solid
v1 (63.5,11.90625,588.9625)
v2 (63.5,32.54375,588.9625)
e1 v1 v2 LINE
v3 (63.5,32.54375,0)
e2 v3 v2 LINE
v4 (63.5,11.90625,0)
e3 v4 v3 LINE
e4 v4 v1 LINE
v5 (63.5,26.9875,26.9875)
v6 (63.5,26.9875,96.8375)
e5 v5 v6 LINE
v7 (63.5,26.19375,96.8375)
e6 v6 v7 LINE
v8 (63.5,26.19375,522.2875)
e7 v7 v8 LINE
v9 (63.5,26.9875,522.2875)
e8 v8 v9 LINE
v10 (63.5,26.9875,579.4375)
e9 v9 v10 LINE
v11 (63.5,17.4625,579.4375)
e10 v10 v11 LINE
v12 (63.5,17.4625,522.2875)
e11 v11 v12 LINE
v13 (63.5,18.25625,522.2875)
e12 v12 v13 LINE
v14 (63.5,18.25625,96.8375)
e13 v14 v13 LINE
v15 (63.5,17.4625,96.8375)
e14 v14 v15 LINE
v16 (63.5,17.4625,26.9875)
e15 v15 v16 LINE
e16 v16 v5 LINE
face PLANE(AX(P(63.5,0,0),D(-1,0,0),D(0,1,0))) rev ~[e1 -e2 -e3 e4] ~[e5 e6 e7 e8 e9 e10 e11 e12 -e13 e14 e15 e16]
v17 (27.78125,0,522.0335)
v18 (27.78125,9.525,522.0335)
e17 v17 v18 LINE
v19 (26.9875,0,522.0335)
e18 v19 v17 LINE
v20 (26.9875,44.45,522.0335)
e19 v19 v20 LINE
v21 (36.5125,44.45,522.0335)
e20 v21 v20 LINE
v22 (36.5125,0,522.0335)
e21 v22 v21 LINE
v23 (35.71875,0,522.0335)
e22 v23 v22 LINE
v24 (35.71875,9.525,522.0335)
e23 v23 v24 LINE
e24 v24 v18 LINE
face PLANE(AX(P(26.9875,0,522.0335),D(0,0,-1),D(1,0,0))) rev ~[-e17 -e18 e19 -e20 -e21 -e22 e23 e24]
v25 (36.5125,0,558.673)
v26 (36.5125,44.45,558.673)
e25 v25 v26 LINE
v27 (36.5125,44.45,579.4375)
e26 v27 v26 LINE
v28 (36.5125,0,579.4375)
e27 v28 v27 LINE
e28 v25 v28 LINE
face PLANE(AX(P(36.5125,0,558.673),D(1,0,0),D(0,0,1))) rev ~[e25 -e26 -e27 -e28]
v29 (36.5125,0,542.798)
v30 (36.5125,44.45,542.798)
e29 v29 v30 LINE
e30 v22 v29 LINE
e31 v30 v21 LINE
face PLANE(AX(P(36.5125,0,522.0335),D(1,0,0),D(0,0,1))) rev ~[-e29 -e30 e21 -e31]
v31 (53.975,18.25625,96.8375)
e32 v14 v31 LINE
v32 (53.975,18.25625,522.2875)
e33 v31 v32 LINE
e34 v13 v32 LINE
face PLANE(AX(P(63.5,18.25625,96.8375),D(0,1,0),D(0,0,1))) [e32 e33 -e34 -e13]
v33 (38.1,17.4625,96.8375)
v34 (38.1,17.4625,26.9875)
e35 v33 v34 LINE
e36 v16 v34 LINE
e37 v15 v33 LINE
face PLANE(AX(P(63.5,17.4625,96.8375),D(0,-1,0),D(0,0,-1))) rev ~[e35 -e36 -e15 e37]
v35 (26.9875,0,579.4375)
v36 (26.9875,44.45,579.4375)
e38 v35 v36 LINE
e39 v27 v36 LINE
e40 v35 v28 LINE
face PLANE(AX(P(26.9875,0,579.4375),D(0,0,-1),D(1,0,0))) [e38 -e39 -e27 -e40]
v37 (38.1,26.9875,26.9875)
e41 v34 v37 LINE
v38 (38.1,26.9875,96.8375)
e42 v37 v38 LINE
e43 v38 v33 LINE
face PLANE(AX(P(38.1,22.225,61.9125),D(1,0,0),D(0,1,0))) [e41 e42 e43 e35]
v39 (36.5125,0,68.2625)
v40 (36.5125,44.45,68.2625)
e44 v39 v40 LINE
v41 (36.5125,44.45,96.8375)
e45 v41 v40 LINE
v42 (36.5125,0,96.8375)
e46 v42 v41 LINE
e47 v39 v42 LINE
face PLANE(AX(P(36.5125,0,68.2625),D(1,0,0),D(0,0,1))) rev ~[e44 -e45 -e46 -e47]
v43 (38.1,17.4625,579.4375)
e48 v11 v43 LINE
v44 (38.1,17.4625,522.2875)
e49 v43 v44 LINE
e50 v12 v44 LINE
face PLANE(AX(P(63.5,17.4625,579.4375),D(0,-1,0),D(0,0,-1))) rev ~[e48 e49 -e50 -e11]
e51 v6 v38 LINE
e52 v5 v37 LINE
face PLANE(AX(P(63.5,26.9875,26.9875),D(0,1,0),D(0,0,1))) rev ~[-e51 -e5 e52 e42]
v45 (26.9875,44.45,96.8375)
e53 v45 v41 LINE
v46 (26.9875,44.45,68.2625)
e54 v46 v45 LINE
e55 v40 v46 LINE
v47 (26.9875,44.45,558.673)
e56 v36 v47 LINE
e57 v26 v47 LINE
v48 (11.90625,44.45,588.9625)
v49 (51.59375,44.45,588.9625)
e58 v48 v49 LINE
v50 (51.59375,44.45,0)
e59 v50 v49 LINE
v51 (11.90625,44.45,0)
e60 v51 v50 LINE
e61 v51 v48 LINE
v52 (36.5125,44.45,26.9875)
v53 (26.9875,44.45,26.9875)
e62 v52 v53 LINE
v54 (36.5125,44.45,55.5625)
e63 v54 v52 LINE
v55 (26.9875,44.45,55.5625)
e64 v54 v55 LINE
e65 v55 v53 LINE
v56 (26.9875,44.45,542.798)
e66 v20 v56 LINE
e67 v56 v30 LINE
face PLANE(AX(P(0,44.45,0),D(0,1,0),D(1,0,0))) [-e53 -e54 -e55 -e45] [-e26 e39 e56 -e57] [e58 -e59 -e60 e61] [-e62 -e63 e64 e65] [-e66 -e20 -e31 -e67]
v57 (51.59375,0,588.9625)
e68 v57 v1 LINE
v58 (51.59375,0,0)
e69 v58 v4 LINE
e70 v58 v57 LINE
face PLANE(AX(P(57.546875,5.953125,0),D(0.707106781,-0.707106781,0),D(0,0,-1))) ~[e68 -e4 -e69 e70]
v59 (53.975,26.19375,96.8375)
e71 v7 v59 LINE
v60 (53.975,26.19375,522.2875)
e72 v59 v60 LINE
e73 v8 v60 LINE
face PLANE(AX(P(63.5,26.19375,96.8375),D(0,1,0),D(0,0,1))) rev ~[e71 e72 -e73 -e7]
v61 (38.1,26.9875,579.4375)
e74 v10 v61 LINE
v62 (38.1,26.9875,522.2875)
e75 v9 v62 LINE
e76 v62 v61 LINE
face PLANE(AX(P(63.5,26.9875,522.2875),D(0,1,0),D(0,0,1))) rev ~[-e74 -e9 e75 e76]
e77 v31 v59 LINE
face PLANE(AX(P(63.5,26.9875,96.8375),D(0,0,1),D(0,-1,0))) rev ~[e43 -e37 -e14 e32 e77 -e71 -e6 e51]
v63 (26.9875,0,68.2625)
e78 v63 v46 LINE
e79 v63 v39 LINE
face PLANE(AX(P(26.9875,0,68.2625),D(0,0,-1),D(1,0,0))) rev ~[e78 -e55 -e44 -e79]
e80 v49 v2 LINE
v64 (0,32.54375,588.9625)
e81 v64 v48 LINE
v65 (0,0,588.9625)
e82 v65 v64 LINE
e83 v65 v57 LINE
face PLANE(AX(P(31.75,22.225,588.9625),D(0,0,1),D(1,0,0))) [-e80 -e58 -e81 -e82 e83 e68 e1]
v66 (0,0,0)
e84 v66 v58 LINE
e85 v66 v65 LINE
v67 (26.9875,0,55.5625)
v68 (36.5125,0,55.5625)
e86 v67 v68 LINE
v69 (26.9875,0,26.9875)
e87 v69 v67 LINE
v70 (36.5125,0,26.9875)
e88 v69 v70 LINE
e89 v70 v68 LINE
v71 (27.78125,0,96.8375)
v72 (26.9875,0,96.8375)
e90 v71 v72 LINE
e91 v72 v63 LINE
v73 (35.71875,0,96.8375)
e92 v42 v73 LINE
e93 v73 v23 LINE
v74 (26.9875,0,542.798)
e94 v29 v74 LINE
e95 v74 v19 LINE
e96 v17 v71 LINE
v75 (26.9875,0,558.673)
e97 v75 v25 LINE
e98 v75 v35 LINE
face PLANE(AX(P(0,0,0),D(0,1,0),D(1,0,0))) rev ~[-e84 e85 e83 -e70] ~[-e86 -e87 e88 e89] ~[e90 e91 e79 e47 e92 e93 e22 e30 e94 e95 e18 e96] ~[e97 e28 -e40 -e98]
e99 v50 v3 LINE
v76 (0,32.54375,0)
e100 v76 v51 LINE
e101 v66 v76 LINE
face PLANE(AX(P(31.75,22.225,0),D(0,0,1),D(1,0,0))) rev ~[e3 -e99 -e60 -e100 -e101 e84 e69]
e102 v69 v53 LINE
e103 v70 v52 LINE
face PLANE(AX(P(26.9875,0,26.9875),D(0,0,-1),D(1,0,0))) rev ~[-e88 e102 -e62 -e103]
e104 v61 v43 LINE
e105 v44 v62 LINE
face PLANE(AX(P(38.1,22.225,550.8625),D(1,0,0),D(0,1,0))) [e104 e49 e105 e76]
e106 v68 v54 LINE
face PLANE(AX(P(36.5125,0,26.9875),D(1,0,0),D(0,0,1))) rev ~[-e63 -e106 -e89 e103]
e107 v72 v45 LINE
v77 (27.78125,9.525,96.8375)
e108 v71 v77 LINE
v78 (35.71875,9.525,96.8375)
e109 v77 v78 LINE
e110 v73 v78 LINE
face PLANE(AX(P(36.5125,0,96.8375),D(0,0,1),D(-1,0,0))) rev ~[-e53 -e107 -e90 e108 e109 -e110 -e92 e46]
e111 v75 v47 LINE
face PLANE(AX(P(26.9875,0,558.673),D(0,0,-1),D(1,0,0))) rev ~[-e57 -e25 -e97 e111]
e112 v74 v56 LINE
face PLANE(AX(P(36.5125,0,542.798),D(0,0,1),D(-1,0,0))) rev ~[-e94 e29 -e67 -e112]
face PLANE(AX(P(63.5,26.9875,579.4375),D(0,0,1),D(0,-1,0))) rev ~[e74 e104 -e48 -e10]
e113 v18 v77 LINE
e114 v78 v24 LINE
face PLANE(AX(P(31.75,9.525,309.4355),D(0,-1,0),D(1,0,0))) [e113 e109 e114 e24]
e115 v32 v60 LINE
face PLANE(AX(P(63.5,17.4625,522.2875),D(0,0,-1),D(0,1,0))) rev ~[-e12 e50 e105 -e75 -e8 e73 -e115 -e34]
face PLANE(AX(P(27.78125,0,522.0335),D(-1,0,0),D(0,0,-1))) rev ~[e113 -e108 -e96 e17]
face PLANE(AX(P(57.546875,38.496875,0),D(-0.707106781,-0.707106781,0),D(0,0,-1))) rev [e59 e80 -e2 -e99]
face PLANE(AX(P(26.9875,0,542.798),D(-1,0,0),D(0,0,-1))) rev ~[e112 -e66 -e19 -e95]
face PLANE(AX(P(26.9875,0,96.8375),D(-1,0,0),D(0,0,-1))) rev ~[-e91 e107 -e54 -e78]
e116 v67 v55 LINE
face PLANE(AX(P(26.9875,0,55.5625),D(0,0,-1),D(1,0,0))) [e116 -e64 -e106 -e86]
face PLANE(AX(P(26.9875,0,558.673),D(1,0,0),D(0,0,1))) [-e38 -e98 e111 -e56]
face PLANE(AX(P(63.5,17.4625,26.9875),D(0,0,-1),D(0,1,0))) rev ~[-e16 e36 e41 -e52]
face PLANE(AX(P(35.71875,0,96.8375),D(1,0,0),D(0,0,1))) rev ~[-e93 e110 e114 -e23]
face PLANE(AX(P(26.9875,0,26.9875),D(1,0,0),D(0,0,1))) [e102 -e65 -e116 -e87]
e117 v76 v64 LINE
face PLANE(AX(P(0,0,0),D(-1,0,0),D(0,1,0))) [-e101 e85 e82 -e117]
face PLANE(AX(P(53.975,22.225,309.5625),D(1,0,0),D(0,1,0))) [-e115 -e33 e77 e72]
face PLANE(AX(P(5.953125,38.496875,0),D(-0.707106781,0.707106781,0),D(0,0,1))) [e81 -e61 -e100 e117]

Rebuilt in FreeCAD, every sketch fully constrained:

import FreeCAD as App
import Part
import Sketcher

V = App.Vector
Q = App.Units.Quantity


def edges_at(feature, points):
    """Names of the edges that pass closest to the given points."""
    edges = feature.Shape.Edges
    near = lambda p: min(range(len(edges)), key=lambda i: edges[i].distToShape(Part.Vertex(*p))[0])
    return sorted({f"Edge{near(p) + 1}" for p in points})


def add_polygon(sketch, points):
    """Adds a closed chain of lines whose ends are joined by coincident constraints."""
    first, n = sketch.GeometryCount, len(points)
    for a, b in zip(points, points[1:] + points[:1]):
        sketch.addGeometry(Part.LineSegment(App.Vector(*a, 0), App.Vector(*b, 0)), False)
    for i in range(n):
        sketch.addConstraint(Sketcher.Constraint("Coincident", first + i, 2, first + (i + 1) % n, 1))

doc = App.newDocument("Part")
body = doc.addObject("PartDesign::Body", "Body")

# Sketch on XY plane
sketch1 = doc.addObject("Sketcher::SketchObject", "Sketch")
body.addObject(sketch1)
sketch1.AttachmentSupport = (doc.XY_Plane, [""])
sketch1.MapMode = "FlatFace"
add_polygon(sketch1, [(0, 44), (0, 0), (64, 0), (64, 44)])  # lines 0-3
sketch1.addConstraint(Sketcher.Constraint("Vertical", 0))
sketch1.addConstraint(Sketcher.Constraint("Horizontal", 1))
sketch1.addConstraint(Sketcher.Constraint("Vertical", 2))
sketch1.addConstraint(Sketcher.Constraint("Horizontal", 3))
sketch1.addConstraint(Sketcher.Constraint("Coincident", 0, 2, -1, 1))
sketch1.addConstraint(Sketcher.Constraint("DistanceX", 1, 1, 1, 2, Q("2.5 in")))
sketch1.addConstraint(Sketcher.Constraint("DistanceY", 0, 2, 0, 1, Q("1.75 in")))
pad1 = doc.addObject("PartDesign::Pad", "Pad")
body.addObject(pad1)
pad1.Profile = sketch1
pad1.Length = Q("23.1875 in")

# Sketch on YZ plane
sketch2 = doc.addObject("Sketcher::SketchObject", "Sketch001")
body.addObject(sketch2)
sketch2.AttachmentSupport = (doc.YZ_Plane, [""])
sketch2.MapMode = "FlatFace"
sketch2.AttachmentOffset = App.Placement(V(0, 0, 2.5 * 25.4), App.Rotation())
add_polygon(sketch2, [(27, 579), (17, 579), (17, 522), (27, 522)])  # lines 0-3
add_polygon(sketch2, [(17, 97), (17, 27), (27, 27), (27, 97)])  # lines 4-7
sketch2.addConstraint(Sketcher.Constraint("Horizontal", 0))
sketch2.addConstraint(Sketcher.Constraint("Vertical", 1))
sketch2.addConstraint(Sketcher.Constraint("Horizontal", 2))
sketch2.addConstraint(Sketcher.Constraint("Vertical", 3))
sketch2.addConstraint(Sketcher.Constraint("Vertical", 4))
sketch2.addConstraint(Sketcher.Constraint("Horizontal", 5))
sketch2.addConstraint(Sketcher.Constraint("Vertical", 6))
sketch2.addConstraint(Sketcher.Constraint("Horizontal", 7))
sketch2.addConstraint(Sketcher.Constraint("Vertical", 1, 2, 4, 2))
sketch2.addConstraint(Sketcher.Constraint("Vertical", 3, 2, 5, 2))
sketch2.addConstraint(Sketcher.Constraint("DistanceY", 6, 2, 3, 2, Q("19 in")))
sketch2.addConstraint(Sketcher.Constraint("DistanceY", 1, 2, 1, 1, Q("2.25 in")))
sketch2.addConstraint(Sketcher.Constraint("DistanceY", 4, 2, 4, 1, Q("2.75 in")))
sketch2.addConstraint(Sketcher.Constraint("DistanceX", 0, 2, 0, 1, Q("0.375 in")))
sketch2.addConstraint(Sketcher.Constraint("DistanceX", -1, 1, 0, 2, Q("0.6875 in")))
sketch2.addConstraint(Sketcher.Constraint("DistanceY", -1, 1, 0, 2, Q("22.8125 in")))
pocket1 = doc.addObject("PartDesign::Pocket", "Pocket")
body.addObject(pocket1)
pocket1.Profile = sketch2
pocket1.Length = Q("1 in")

# Sketch on YZ plane
sketch3 = doc.addObject("Sketcher::SketchObject", "Sketch002")
body.addObject(sketch3)
sketch3.AttachmentSupport = (doc.YZ_Plane, [""])
sketch3.MapMode = "FlatFace"
sketch3.AttachmentOffset = App.Placement(V(0, 0, 2.5 * 25.4), App.Rotation())
add_polygon(sketch3, [(18, 522), (18, 97), (26, 97), (26, 522)])  # lines 0-3
sketch3.addConstraint(Sketcher.Constraint("Vertical", 0))
sketch3.addConstraint(Sketcher.Constraint("Horizontal", 1))
sketch3.addConstraint(Sketcher.Constraint("Vertical", 2))
sketch3.addConstraint(Sketcher.Constraint("Horizontal", 3))
sketch3.addConstraint(Sketcher.Constraint("DistanceY", 0, 2, 0, 1, Q("16.75 in")))
sketch3.addConstraint(Sketcher.Constraint("DistanceX", 1, 1, 1, 2, Q("0.3125 in")))
sketch3.addConstraint(Sketcher.Constraint("DistanceX", -1, 1, 0, 2, Q("0.71875 in")))
sketch3.addConstraint(Sketcher.Constraint("DistanceY", -1, 1, 0, 2, Q("3.8125 in")))
pocket2 = doc.addObject("PartDesign::Pocket", "Pocket001")
body.addObject(pocket2)
pocket2.Profile = sketch3
pocket2.Length = Q("0.375 in")

# Sketch on XZ plane
sketch4 = doc.addObject("Sketcher::SketchObject", "Sketch003")
body.addObject(sketch4)
sketch4.AttachmentSupport = (doc.XZ_Plane, [""])
sketch4.MapMode = "FlatFace"
add_polygon(sketch4, [(36, 522), (28, 522), (28, 97), (36, 97)])  # lines 0-3
sketch4.addConstraint(Sketcher.Constraint("Horizontal", 0))
sketch4.addConstraint(Sketcher.Constraint("Vertical", 1))
sketch4.addConstraint(Sketcher.Constraint("Horizontal", 2))
sketch4.addConstraint(Sketcher.Constraint("Vertical", 3))
sketch4.addConstraint(Sketcher.Constraint("DistanceY", 1, 2, 1, 1, Q("16.74 in")))
sketch4.addConstraint(Sketcher.Constraint("DistanceX", 0, 2, 0, 1, Q("0.3125 in")))
sketch4.addConstraint(Sketcher.Constraint("DistanceX", -1, 1, 0, 2, Q("1.09375 in")))
sketch4.addConstraint(Sketcher.Constraint("DistanceY", -1, 1, 1, 2, Q("3.8125 in")))
pocket3 = doc.addObject("PartDesign::Pocket", "Pocket002")
body.addObject(pocket3)
pocket3.Profile = sketch4
pocket3.Length = Q("0.375 in")

# Sketch on XZ plane
sketch5 = doc.addObject("Sketcher::SketchObject", "Sketch004")
body.addObject(sketch5)
sketch5.AttachmentSupport = (doc.XZ_Plane, [""])
sketch5.MapMode = "FlatFace"
add_polygon(sketch5, [(27, 579), (27, 559), (37, 559), (37, 579)])  # lines 0-3
add_polygon(sketch5, [(37, 522), (37, 543), (27, 543), (27, 522)])  # lines 4-7
add_polygon(sketch5, [(27, 97), (27, 68), (37, 68), (37, 97)])  # lines 8-11
add_polygon(sketch5, [(27, 56), (27, 27), (37, 27), (37, 56)])  # lines 12-15
sketch5.addConstraint(Sketcher.Constraint("Vertical", 0))
sketch5.addConstraint(Sketcher.Constraint("Horizontal", 1))
sketch5.addConstraint(Sketcher.Constraint("Vertical", 2))
sketch5.addConstraint(Sketcher.Constraint("Horizontal", 3))
sketch5.addConstraint(Sketcher.Constraint("Vertical", 4))
sketch5.addConstraint(Sketcher.Constraint("Horizontal", 5))
sketch5.addConstraint(Sketcher.Constraint("Vertical", 6))
sketch5.addConstraint(Sketcher.Constraint("Horizontal", 7))
sketch5.addConstraint(Sketcher.Constraint("Vertical", 8))
sketch5.addConstraint(Sketcher.Constraint("Horizontal", 9))
sketch5.addConstraint(Sketcher.Constraint("Vertical", 10))
sketch5.addConstraint(Sketcher.Constraint("Horizontal", 11))
sketch5.addConstraint(Sketcher.Constraint("Vertical", 12))
sketch5.addConstraint(Sketcher.Constraint("Horizontal", 13))
sketch5.addConstraint(Sketcher.Constraint("Vertical", 14))
sketch5.addConstraint(Sketcher.Constraint("Horizontal", 15))
sketch5.addConstraint(Sketcher.Constraint("Vertical", 2, 2, 4, 2))
sketch5.addConstraint(Sketcher.Constraint("Vertical", 3, 2, 5, 2))
sketch5.addConstraint(Sketcher.Constraint("Vertical", 6, 2, 8, 2))
sketch5.addConstraint(Sketcher.Constraint("Vertical", 7, 2, 9, 2))
sketch5.addConstraint(Sketcher.Constraint("Vertical", 11, 2, 12, 2))
sketch5.addConstraint(Sketcher.Constraint("Vertical", 10, 2, 13, 2))
sketch5.addConstraint(Sketcher.Constraint("Equal", 2, 4))
sketch5.addConstraint(Sketcher.Constraint("Equal", 10, 12))
sketch5.addConstraint(Sketcher.Constraint("DistanceY", 14, 2, 9, 2, Q("0.5 in")))
sketch5.addConstraint(Sketcher.Constraint("DistanceX", 1, 1, 1, 2, Q("0.375 in")))
sketch5.addConstraint(Sketcher.Constraint("DistanceY", 8, 2, 8, 1, Q("1.125 in")))
sketch5.addConstraint(Sketcher.Constraint("DistanceY", -1, 1, 4, 2, Q("21.37 in")))
sketch5.addConstraint(Sketcher.Constraint("DistanceY", 6, 2, 3, 2, Q("2.26 in")))
sketch5.addConstraint(Sketcher.Constraint("DistanceY", 10, 2, 7, 2, Q("16.74 in")))
sketch5.addConstraint(Sketcher.Constraint("DistanceY", 0, 2, 0, 1, Q("0.8175 in")))
sketch5.addConstraint(Sketcher.Constraint("DistanceX", -1, 1, 0, 2, Q("1.0625 in")))
pocket4 = doc.addObject("PartDesign::Pocket", "Pocket003")
body.addObject(pocket4)
pocket4.Profile = sketch5
pocket4.Type = "ThroughAll"
doc.recompute()

chamfer = doc.addObject("PartDesign::Chamfer", "Chamfer")
body.addObject(chamfer)
chamfer.Base = (pocket4, edges_at(pocket4, [(63.5, 44.45, 294.481), (0, 44.45, 294.481), (63.5, 0, 294.481)]))
chamfer.Size = Q("0.46875 in")

doc.recompute()
